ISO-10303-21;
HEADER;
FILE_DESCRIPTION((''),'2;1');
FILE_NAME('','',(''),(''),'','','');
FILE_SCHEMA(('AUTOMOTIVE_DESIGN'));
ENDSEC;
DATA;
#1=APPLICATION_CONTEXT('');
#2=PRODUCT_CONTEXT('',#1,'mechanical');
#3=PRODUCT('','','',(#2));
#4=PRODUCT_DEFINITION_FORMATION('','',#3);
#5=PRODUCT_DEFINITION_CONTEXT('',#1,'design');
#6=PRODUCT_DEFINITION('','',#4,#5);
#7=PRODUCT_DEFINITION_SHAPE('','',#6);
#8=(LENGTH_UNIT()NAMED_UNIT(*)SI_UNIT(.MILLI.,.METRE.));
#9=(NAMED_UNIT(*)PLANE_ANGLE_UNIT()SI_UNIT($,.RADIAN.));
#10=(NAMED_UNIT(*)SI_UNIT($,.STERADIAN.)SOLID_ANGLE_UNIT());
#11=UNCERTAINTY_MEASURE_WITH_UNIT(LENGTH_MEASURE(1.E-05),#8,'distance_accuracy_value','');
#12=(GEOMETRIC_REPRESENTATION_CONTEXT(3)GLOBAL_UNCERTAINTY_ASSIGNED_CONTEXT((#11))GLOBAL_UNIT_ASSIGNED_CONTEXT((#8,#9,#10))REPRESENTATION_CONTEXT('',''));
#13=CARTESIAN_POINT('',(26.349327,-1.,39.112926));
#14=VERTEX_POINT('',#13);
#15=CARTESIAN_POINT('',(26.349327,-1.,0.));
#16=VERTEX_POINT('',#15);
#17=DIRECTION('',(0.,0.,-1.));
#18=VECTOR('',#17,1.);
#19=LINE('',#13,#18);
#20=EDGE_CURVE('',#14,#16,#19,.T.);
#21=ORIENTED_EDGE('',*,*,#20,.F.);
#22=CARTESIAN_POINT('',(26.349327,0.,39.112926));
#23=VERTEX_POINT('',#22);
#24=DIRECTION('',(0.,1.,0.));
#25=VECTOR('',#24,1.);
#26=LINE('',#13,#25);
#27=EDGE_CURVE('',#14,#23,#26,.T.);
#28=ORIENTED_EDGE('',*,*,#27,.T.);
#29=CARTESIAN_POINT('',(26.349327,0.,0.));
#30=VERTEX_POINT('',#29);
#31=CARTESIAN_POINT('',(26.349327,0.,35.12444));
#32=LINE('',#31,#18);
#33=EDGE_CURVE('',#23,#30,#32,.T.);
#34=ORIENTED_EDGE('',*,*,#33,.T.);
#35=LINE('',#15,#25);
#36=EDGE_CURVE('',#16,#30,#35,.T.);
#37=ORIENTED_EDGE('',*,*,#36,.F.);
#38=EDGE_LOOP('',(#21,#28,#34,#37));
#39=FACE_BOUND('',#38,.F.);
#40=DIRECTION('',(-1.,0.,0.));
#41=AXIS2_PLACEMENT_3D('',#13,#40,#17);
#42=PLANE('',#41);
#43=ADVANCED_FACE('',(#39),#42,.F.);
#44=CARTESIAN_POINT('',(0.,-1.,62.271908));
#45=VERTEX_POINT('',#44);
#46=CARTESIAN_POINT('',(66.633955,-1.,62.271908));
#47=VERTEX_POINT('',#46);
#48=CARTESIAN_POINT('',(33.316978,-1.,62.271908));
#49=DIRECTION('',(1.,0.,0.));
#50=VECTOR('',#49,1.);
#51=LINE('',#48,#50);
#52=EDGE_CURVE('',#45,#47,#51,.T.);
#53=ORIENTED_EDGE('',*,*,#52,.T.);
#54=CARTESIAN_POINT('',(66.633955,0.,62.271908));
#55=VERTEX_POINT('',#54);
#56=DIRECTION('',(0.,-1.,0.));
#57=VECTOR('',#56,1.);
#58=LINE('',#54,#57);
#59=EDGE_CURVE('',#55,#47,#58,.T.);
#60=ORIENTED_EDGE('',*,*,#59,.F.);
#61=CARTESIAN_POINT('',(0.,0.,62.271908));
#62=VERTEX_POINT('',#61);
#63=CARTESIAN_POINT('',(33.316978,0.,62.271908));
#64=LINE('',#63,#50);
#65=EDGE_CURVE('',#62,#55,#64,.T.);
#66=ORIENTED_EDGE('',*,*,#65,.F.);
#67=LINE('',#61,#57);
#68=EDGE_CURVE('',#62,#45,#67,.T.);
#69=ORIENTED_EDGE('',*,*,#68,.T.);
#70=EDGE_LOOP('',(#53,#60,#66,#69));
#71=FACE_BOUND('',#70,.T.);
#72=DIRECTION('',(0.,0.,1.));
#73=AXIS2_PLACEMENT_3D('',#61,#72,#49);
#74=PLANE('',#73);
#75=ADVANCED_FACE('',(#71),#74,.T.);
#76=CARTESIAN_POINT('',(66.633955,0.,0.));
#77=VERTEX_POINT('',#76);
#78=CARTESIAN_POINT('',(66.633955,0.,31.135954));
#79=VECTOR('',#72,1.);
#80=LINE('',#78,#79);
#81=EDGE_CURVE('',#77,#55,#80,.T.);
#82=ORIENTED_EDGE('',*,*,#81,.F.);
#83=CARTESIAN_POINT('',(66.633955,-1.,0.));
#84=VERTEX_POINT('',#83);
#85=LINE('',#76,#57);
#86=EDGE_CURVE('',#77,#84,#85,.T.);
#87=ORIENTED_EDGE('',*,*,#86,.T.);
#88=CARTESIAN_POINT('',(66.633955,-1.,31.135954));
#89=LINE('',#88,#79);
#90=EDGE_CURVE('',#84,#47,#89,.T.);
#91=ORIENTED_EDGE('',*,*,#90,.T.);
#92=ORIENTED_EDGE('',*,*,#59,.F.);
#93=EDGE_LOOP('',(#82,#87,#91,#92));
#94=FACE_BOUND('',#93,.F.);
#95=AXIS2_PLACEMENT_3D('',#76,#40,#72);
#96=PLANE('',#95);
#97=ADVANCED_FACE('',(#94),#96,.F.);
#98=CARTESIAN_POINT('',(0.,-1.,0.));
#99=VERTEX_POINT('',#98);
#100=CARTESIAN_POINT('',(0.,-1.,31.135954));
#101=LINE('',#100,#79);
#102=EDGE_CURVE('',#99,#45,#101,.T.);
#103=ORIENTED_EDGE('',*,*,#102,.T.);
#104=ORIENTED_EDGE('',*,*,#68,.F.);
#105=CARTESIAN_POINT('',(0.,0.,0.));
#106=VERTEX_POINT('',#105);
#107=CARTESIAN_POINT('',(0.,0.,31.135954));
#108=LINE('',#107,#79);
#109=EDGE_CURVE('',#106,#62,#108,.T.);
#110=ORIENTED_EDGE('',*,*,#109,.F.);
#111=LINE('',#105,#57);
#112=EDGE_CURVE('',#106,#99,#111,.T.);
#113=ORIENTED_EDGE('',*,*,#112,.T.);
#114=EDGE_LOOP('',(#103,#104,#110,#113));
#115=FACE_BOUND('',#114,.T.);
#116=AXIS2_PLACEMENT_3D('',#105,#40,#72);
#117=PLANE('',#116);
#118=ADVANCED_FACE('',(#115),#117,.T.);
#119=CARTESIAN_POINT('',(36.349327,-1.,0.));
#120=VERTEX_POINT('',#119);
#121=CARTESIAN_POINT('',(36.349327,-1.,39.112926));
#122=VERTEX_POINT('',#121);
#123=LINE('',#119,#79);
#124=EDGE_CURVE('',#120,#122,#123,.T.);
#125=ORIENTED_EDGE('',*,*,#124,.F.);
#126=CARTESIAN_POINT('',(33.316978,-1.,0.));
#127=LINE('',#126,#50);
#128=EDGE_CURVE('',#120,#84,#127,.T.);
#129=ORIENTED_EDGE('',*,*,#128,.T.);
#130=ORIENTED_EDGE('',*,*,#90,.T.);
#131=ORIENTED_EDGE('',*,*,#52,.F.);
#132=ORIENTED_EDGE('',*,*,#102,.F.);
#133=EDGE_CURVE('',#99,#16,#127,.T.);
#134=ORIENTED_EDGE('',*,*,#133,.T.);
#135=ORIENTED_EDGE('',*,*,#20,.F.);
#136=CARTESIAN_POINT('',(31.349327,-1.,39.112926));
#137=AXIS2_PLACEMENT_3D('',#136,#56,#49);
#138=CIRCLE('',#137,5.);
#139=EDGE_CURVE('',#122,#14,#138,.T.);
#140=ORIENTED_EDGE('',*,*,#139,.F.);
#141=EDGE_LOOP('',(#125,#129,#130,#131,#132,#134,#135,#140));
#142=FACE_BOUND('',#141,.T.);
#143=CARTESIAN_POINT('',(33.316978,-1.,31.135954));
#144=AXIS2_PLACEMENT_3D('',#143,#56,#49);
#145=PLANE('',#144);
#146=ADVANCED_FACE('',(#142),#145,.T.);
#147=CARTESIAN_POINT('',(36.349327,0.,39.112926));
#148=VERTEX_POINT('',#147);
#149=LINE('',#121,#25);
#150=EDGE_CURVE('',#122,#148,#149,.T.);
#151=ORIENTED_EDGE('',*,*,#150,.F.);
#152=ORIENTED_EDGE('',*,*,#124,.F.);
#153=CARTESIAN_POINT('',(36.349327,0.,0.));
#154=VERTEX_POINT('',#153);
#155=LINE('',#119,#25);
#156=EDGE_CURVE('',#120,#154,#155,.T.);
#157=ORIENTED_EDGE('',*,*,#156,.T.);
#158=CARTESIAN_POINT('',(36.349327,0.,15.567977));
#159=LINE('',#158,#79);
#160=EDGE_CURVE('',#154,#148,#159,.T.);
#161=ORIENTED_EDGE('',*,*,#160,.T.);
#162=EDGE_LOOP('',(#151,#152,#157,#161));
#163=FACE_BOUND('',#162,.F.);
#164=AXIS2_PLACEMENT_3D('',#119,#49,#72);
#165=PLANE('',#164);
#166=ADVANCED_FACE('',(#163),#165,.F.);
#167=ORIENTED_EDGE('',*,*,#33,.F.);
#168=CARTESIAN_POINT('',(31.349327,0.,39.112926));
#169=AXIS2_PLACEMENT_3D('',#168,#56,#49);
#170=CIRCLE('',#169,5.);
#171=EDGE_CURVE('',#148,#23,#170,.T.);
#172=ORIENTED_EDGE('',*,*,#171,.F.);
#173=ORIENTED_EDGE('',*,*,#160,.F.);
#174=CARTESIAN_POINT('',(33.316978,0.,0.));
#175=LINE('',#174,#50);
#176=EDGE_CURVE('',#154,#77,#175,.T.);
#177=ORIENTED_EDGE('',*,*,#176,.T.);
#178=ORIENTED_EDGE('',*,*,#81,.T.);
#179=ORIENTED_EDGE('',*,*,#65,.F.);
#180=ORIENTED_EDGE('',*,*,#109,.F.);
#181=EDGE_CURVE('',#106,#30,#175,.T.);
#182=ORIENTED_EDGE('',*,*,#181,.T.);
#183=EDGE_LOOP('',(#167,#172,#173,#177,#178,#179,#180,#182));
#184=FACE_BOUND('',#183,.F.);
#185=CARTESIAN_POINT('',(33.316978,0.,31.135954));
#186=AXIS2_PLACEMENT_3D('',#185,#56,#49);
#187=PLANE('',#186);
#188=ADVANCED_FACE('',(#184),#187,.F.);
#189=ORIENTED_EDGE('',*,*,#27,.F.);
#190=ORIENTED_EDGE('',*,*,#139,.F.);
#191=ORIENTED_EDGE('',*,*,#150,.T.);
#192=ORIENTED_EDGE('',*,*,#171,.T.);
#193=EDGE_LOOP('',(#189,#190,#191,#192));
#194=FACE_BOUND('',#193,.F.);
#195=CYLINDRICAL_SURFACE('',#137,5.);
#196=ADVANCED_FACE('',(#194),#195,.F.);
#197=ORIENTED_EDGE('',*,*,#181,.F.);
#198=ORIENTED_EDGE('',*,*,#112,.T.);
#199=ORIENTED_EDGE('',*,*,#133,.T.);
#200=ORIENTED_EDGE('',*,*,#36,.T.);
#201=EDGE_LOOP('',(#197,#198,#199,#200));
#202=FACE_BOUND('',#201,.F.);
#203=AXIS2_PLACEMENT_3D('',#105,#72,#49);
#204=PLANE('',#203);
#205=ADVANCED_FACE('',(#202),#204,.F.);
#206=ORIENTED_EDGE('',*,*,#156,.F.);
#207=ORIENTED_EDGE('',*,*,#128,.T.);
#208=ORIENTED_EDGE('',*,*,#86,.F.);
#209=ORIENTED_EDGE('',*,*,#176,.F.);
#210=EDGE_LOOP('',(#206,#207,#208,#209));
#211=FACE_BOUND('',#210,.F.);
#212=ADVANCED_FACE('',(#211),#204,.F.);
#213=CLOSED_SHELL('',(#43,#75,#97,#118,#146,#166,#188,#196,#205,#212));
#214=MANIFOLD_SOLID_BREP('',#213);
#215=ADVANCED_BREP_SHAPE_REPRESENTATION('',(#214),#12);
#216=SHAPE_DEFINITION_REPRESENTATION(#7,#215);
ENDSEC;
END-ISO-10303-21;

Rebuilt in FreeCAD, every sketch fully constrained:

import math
import FreeCAD as App
import Part
import Sketcher
from FreeCAD import Vector

doc = App.newDocument("Part")
body = doc.addObject("PartDesign::Body", "Body")

# Sketch on XZ plane
sketch1 = body.newObject("Sketcher::SketchObject", "Sketch")
sketch1.AttachmentSupport = (doc.getObject("XZ_Plane"), [""])
sketch1.MapMode = "FlatFace"
sketch1.addGeometry(Part.LineSegment(Vector(0, 62, 0), Vector(0, 0, 0)), False)
sketch1.addGeometry(Part.LineSegment(Vector(0, 0, 0), Vector(67, 0, 0)), False)
sketch1.addGeometry(Part.LineSegment(Vector(67, 0, 0), Vector(67, 62, 0)), False)
sketch1.addGeometry(Part.LineSegment(Vector(67, 62, 0), Vector(0, 62, 0)), False)
sketch1.addConstraint(Sketcher.Constraint("Coincident", 0, 2, 1, 1))
sketch1.addConstraint(Sketcher.Constraint("Coincident", 1, 2, 2, 1))
sketch1.addConstraint(Sketcher.Constraint("Coincident", 2, 2, 3, 1))
sketch1.addConstraint(Sketcher.Constraint("Coincident", 3, 2, 0, 1))
sketch1.addConstraint(Sketcher.Constraint("Vertical", 0))
sketch1.addConstraint(Sketcher.Constraint("Horizontal", 1))
sketch1.addConstraint(Sketcher.Constraint("Vertical", 2))
sketch1.addConstraint(Sketcher.Constraint("Horizontal", 3))
sketch1.addConstraint(Sketcher.Constraint("Coincident", 0, 2, -1, 1))
sketch1.addConstraint(Sketcher.Constraint("DistanceY", 0, 2, 0, 1, 62.271908))
sketch1.addConstraint(Sketcher.Constraint("DistanceX", 1, 1, 1, 2, 66.633955))
pad1 = body.newObject("PartDesign::Pad", "Pad")
pad1.Profile = sketch1
pad1.Length = 1

# Sketch on XZ plane
sketch2 = body.newObject("Sketcher::SketchObject", "Sketch001")
sketch2.AttachmentSupport = (doc.getObject("XZ_Plane"), [""])
sketch2.MapMode = "FlatFace"
sketch2.AttachmentOffset = App.Placement(Vector(0, 0, 1), App.Rotation())
sketch2.addGeometry(Part.LineSegment(Vector(36, 0, 0), Vector(36, 39, 0)), False)
sketch2.addGeometry(Part.ArcOfCircle(Part.Circle(Vector(31, 39, 0), Vector(0, 0, 1), 5), math.radians(0), math.radians(180)), False)
sketch2.addGeometry(Part.LineSegment(Vector(26, 39, 0), Vector(26, 0, 0)), False)
sketch2.addGeometry(Part.LineSegment(Vector(26, 0, 0), Vector(36, 0, 0)), False)
sketch2.addConstraint(Sketcher.Constraint("Tangent", 0, 2, 1, 1))
sketch2.addConstraint(Sketcher.Constraint("Tangent", 1, 2, 2, 1))
sketch2.addConstraint(Sketcher.Constraint("Coincident", 2, 2, 3, 1))
sketch2.addConstraint(Sketcher.Constraint("Coincident", 3, 2, 0, 1))
sketch2.addConstraint(Sketcher.Constraint("Vertical", 0))
sketch2.addConstraint(Sketcher.Constraint("Vertical", 2))
sketch2.addConstraint(Sketcher.Constraint("Horizontal", 3))
sketch2.addConstraint(Sketcher.Constraint("PointOnObject", 2, 2, -1))
sketch2.addConstraint(Sketcher.Constraint("Radius", 1, 5.0))
sketch2.addConstraint(Sketcher.Constraint("DistanceY", 0, 1, 0, 2, 39.112926))
sketch2.addConstraint(Sketcher.Constraint("DistanceX", -1, 1, 1, 3, 31.349327))
pocket1 = body.newObject("PartDesign::Pocket", "Pocket")
pocket1.Profile = sketch2
pocket1.Type = "ThroughAll"

doc.recompute()
